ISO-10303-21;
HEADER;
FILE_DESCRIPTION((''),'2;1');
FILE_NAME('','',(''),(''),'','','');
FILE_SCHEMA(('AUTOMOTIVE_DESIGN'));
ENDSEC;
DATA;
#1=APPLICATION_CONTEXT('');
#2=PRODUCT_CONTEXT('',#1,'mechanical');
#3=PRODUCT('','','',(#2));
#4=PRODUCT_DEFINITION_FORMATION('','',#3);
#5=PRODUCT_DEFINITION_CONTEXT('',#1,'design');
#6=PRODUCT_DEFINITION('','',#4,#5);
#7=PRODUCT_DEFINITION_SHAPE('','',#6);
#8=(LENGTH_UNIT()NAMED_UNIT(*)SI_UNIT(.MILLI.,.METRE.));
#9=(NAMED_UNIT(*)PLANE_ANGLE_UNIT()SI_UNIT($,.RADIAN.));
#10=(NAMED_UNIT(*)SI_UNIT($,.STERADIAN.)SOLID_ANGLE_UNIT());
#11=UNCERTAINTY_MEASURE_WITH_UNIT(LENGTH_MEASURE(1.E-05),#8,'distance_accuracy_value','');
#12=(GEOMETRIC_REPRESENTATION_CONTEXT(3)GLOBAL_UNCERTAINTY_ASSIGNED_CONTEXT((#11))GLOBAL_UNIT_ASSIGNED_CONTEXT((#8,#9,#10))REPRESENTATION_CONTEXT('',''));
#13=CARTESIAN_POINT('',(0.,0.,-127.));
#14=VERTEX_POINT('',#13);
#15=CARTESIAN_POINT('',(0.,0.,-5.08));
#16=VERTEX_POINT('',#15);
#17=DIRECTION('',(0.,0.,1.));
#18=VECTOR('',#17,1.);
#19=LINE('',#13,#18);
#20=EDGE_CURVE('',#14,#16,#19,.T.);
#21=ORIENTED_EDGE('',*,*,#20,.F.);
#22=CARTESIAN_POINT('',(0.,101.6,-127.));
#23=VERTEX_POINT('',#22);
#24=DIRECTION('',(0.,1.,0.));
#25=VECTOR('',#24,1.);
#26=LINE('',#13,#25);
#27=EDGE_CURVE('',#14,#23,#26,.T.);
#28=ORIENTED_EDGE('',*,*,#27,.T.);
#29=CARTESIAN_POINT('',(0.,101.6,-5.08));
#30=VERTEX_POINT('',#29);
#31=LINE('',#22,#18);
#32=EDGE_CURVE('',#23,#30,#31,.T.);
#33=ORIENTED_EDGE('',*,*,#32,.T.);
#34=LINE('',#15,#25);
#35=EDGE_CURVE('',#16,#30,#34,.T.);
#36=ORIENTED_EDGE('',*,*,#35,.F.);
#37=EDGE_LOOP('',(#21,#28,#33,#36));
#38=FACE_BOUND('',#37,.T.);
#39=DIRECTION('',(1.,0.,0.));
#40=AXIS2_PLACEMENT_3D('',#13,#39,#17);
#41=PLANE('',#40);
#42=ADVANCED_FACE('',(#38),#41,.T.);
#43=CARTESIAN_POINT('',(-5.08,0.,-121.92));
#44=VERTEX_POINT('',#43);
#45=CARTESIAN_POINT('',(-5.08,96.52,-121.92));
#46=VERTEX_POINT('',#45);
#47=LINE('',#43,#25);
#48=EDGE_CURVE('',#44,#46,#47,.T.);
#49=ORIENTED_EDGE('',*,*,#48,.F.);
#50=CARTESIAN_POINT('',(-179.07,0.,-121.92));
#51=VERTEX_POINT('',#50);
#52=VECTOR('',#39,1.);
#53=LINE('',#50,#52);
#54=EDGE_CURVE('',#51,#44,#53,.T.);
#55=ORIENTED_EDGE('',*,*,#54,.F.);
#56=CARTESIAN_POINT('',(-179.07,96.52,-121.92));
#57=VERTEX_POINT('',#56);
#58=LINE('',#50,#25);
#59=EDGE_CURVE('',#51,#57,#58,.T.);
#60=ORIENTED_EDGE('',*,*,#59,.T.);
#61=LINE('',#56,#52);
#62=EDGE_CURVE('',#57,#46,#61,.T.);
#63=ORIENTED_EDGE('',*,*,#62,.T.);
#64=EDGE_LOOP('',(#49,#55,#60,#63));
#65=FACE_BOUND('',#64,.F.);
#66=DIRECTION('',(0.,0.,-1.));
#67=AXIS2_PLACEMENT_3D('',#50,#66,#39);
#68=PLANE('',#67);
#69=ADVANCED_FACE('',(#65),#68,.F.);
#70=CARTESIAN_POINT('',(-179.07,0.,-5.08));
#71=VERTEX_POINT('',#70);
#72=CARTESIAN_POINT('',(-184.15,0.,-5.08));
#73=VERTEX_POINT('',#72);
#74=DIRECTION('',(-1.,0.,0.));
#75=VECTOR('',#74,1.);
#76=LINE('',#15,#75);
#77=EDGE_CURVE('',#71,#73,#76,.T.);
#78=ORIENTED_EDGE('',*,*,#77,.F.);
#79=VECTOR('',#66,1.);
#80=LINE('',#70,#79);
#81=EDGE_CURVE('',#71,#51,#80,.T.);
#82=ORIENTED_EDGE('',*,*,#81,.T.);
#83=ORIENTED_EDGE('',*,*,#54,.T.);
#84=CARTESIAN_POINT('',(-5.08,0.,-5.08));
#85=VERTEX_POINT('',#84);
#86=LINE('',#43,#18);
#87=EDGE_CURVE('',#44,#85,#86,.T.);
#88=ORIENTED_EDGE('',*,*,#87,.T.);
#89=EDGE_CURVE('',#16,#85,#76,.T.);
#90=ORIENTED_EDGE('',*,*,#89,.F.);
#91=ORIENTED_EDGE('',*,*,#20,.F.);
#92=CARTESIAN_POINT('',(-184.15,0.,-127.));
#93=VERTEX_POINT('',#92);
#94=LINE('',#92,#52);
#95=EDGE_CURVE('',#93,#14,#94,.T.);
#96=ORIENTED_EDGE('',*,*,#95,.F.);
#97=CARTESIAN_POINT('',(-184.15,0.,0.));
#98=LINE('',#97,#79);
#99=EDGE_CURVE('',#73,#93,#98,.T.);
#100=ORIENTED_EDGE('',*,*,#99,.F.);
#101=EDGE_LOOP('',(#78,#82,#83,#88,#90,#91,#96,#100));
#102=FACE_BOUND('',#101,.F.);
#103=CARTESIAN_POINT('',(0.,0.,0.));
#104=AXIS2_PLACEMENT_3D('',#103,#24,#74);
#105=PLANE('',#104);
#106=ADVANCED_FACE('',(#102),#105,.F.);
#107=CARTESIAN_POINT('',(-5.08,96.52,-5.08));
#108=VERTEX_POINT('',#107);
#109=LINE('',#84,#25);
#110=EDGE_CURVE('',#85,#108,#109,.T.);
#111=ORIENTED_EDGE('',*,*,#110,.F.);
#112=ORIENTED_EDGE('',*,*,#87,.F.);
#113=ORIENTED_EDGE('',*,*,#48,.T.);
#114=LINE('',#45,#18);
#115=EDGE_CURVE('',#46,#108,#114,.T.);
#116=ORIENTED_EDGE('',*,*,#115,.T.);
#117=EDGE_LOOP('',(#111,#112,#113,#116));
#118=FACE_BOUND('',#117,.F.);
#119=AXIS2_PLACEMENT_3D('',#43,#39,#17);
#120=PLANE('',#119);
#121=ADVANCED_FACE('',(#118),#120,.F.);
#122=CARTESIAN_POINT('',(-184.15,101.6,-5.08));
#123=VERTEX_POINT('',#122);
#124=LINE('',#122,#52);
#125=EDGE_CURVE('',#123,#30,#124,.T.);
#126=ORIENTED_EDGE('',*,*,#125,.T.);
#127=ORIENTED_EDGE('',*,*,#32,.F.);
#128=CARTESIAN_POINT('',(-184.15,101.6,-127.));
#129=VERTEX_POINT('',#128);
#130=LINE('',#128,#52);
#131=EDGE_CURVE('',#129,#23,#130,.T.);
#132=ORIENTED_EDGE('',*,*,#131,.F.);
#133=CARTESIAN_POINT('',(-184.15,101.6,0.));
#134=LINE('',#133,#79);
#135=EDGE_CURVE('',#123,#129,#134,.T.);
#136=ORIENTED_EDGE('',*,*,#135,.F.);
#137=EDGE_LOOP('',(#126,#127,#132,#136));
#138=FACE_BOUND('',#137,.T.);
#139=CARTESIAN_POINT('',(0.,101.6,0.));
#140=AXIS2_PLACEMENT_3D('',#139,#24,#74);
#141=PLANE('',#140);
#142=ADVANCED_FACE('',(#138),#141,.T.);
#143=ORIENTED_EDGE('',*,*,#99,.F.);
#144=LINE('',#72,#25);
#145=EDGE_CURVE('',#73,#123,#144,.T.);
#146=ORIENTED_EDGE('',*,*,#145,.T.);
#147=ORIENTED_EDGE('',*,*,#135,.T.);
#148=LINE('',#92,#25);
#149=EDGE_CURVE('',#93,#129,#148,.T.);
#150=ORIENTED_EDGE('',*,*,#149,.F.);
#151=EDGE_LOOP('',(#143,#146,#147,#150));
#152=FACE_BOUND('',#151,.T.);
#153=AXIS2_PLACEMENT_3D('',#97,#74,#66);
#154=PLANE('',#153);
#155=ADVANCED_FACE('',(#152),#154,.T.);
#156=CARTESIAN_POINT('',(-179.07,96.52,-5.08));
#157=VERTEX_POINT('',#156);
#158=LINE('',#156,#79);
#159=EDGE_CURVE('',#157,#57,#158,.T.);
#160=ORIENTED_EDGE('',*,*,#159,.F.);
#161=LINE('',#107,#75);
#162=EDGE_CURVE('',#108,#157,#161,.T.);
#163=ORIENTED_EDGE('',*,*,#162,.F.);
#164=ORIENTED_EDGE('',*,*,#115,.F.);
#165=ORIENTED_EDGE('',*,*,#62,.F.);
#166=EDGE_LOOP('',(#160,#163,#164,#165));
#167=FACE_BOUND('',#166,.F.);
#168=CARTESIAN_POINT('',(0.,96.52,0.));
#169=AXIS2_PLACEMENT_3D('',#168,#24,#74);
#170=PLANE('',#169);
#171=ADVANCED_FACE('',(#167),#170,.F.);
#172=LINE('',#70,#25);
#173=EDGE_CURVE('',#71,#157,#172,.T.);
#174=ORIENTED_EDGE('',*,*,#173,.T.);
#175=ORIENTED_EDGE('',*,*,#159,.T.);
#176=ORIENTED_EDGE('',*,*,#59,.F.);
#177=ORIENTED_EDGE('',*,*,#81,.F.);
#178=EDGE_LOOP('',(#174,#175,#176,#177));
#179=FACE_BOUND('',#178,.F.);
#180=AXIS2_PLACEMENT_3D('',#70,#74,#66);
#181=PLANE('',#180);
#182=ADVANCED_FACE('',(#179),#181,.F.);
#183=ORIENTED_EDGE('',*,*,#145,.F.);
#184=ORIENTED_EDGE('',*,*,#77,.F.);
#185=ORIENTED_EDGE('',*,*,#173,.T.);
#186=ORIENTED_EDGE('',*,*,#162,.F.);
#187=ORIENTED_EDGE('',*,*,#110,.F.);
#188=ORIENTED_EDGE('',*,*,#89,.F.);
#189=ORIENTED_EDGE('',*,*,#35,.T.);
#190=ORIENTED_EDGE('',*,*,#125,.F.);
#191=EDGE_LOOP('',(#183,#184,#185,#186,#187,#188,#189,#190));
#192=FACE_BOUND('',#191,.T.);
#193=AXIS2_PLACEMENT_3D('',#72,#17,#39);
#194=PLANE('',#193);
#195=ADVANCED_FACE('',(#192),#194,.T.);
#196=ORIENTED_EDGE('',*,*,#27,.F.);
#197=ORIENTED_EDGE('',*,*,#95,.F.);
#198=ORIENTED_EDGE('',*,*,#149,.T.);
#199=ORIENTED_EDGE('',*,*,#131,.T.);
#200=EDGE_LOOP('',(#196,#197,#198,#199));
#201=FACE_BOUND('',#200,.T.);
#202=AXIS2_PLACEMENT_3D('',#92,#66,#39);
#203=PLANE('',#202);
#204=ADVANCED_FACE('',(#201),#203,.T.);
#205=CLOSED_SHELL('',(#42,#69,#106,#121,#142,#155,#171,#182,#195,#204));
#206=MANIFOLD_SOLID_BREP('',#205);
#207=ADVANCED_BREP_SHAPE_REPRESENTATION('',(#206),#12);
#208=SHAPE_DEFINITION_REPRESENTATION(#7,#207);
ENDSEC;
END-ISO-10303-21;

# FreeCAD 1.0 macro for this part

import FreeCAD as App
import Part
import Sketcher

V = App.Vector
Q = App.Units.Quantity


def add_polygon(sketch, points):
    """Adds a closed chain of lines whose ends are joined by coincident constraints."""
    first, n = sketch.GeometryCount, len(points)
    for a, b in zip(points, points[1:] + points[:1]):
        sketch.addGeometry(Part.LineSegment(App.Vector(*a, 0), App.Vector(*b, 0)), False)
    for i in range(n):
        sketch.addConstraint(Sketcher.Constraint("Coincident", first + i, 2, first + (i + 1) % n, 1))

doc = App.newDocument("Part")
params = doc.addObject("Spreadsheet::Sheet", "Params")
for row, (alias, value) in enumerate([
    ("sketch1_height", "5 in"),
    ("sketch1_width", "7.25 in"),
    ("pad1_length", "4 in"),
    ("sketch2_height", "4.6 in"),
    ("sketch2_width", "6.85 in"),
    ("pocket1_length", "3.8 in"),
    ("sketch3_height", "4 in"),
    ("sketch3_width", "7.25 in"),
    ("pocket2_length", "0.2 in"),
], start=1):
    params.set(f"A{row}", alias)
    params.set(f"B{row}", "=" + value)
    params.setAlias(f"B{row}", alias)

body = doc.addObject("PartDesign::Body", "Body")

sketch1 = body.newObject("Sketcher::SketchObject", "Sketch")
sketch1.AttachmentSupport = (doc.getObject("XZ_Plane"), [""])
sketch1.MapMode = "FlatFace"
add_polygon(sketch1, [(-184.15, 0), (0, 0), (0, -127), (-184.15, -127)])
sketch1.addConstraint([
    Sketcher.Constraint("Horizontal", 0),
    Sketcher.Constraint("Vertical", 1),
    Sketcher.Constraint("Horizontal", 2),
    Sketcher.Constraint("Vertical", 3),
    Sketcher.Constraint("Coincident", 0, 2, -1, 1),
    Sketcher.Constraint("DistanceY", 1, 2, 1, 1, Q("5 in")),
    Sketcher.Constraint("DistanceX", 0, 1, 0, 2, Q("7.25 in")),
])
sketch1.setExpression("Constraints[9]", "Params.sketch1_height")
sketch1.setExpression("Constraints[10]", "Params.sketch1_width")
pad1 = body.newObject("PartDesign::Pad", "Pad")
pad1.Profile = sketch1
pad1.setExpression("Length", "Params.pad1_length")
pad1.Reversed = True

sketch2 = body.newObject("Sketcher::SketchObject", "Sketch001")
sketch2.AttachmentSupport = (doc.getObject("XZ_Plane"), [""])
sketch2.MapMode = "FlatFace"
add_polygon(sketch2, [(-5.08, -121.92), (-179.07, -121.92), (-179.07, -5.08), (-5.08, -5.08)])
sketch2.addConstraint([
    Sketcher.Constraint("Horizontal", 0),
    Sketcher.Constraint("Vertical", 1),
    Sketcher.Constraint("Horizontal", 2),
    Sketcher.Constraint("Vertical", 3),
    Sketcher.Constraint("DistanceY", 1, 2, -1, 1, Q("0.2 in")),
    Sketcher.Constraint("DistanceX", 2, 2, -1, 1, Q("0.2 in")),
    Sketcher.Constraint("DistanceY", 1, 1, 1, 2, Q("4.6 in")),
    Sketcher.Constraint("DistanceX", 0, 2, 0, 1, Q("6.85 in")),
])
sketch2.setExpression("Constraints[10]", "Params.sketch2_height")
sketch2.setExpression("Constraints[11]", "Params.sketch2_width")
pocket1 = body.newObject("PartDesign::Pocket", "Pocket")
pocket1.Profile = sketch2
pocket1.setExpression("Length", "Params.pocket1_length")

sketch3 = body.newObject("Sketcher::SketchObject", "Sketch002")
sketch3.AttachmentSupport = (doc.getObject("XY_Plane"), [""])
sketch3.MapMode = "FlatFace"
add_polygon(sketch3, [(-184.15, 0), (0, 0), (0, 101.6), (-184.15, 101.6)])
sketch3.addConstraint([
    Sketcher.Constraint("Horizontal", 0),
    Sketcher.Constraint("Vertical", 1),
    Sketcher.Constraint("Horizontal", 2),
    Sketcher.Constraint("Vertical", 3),
    Sketcher.Constraint("Coincident", 0, 2, -1, 1),
    Sketcher.Constraint("DistanceY", 1, 1, 1, 2, Q("4 in")),
    Sketcher.Constraint("DistanceX", 0, 1, 0, 2, Q("7.25 in")),
])
sketch3.setExpression("Constraints[9]", "Params.sketch3_height")
sketch3.setExpression("Constraints[10]", "Params.sketch3_width")
pocket2 = body.newObject("PartDesign::Pocket", "Pocket001")
pocket2.Profile = sketch3
pocket2.setExpression("Length", "Params.pocket2_length")

doc.recompute()
